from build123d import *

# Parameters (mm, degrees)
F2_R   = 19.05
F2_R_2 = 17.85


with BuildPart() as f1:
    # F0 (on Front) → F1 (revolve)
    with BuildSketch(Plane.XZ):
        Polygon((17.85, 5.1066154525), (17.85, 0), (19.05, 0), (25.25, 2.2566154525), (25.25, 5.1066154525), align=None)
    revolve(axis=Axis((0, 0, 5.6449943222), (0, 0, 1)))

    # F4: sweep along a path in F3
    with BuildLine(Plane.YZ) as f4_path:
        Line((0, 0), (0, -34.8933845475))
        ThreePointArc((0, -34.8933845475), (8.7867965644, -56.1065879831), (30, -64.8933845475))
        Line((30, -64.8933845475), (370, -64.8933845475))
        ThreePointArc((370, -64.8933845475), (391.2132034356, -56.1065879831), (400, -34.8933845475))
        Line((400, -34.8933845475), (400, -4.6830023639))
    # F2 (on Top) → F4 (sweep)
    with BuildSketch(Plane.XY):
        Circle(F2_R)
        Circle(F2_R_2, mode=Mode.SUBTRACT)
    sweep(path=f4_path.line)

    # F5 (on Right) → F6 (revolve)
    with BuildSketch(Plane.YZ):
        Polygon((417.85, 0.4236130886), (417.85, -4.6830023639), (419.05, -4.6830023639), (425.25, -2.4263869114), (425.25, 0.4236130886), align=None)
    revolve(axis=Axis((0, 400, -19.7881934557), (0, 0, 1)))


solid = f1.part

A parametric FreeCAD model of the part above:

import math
import FreeCAD as App
import Part
import Sketcher
from FreeCAD import Vector
Q = App.Units.Quantity

doc = App.newDocument("Part")
body = doc.addObject("PartDesign::Body", "Body")

# Sketch on XZ plane
sketch1 = doc.addObject("Sketcher::SketchObject", "Sketch")
body.addObject(sketch1)
sketch1.AttachmentSupport = (doc.XZ_Plane, [""])
sketch1.MapMode = "FlatFace"
sketch1.addGeometry([
    Part.LineSegment(Vector(17.9, 5.1, 0), Vector(17.9, 0, 0)),  # 0
    Part.LineSegment(Vector(17.9, 0, 0), Vector(19.1, 0, 0)),  # 1
    Part.LineSegment(Vector(19.1, 0, 0), Vector(25.2, 2.3, 0)),  # 2
    Part.LineSegment(Vector(25.2, 2.3, 0), Vector(25.2, 5.1, 0)),  # 3
    Part.LineSegment(Vector(25.2, 5.1, 0), Vector(17.9, 5.1, 0)),  # 4
], False)
sketch1.addConstraint([
    Sketcher.Constraint("Coincident", 0, 2, 1, 1),
    Sketcher.Constraint("Coincident", 1, 2, 2, 1),
    Sketcher.Constraint("Coincident", 2, 2, 3, 1),
    Sketcher.Constraint("Coincident", 3, 2, 4, 1),
    Sketcher.Constraint("Coincident", 4, 2, 0, 1),
    Sketcher.Constraint("Vertical", 0),
    Sketcher.Constraint("Horizontal", 1),
    Sketcher.Constraint("Vertical", 3),
    Sketcher.Constraint("Horizontal", 4),
    Sketcher.Constraint("PointOnObject", 0, 2, -1),
    Sketcher.Constraint("Angle", 2, Q("20 deg")),
    Sketcher.Constraint("DistanceX", 1, 1, 1, 2, Q("1.2 mm")),
    Sketcher.Constraint("DistanceX", 4, 2, 4, 1, Q("7.4 mm")),
    Sketcher.Constraint("DistanceY", 3, 1, 3, 2, Q("2.85 mm")),
    Sketcher.Constraint("DistanceX", -1, 1, 0, 2, Q("17.85 mm")),
])
revolution = doc.addObject("PartDesign::Revolution", "Revolution")
body.addObject(revolution)
revolution.Profile = sketch1
revolution.ReferenceAxis = (sketch1, ["V_Axis"])
revolution.Angle = 360

# Sketch on XY plane
sketch2 = doc.addObject("Sketcher::SketchObject", "Sketch001")
body.addObject(sketch2)
sketch2.AttachmentSupport = (doc.XY_Plane, [""])
sketch2.MapMode = "FlatFace"
sketch2.addGeometry([
    Part.Circle(Vector(0, 0, 0), Vector(0, 0, 1), 19),
    Part.Circle(Vector(0, 0, 0), Vector(0, 0, 1), 18),
], False)
sketch2.addConstraint([
    Sketcher.Constraint("Coincident", 0, 3, -1, 1),
    Sketcher.Constraint("Coincident", 1, 3, -1, 1),
    Sketcher.Constraint("Diameter", 0, Q("38.1 mm")),
    Sketcher.Constraint("Diameter", 1, Q("35.7 mm")),
])

# Sketch on YZ plane
sketch3 = doc.addObject("Sketcher::SketchObject", "Sketch002")
body.addObject(sketch3)
sketch3.AttachmentSupport = (doc.YZ_Plane, [""])
sketch3.MapMode = "FlatFace"
sketch3.addGeometry([
    Part.LineSegment(Vector(0, 0, 0), Vector(0, -35, 0)),  # 0
    Part.ArcOfCircle(Part.Circle(Vector(30, -35, 0), Vector(0, 0, 1), 30), math.radians(180), math.radians(270)),  # 1
    Part.LineSegment(Vector(30, -65, 0), Vector(370, -65, 0)),  # 2
    Part.ArcOfCircle(Part.Circle(Vector(370, -35, 0), Vector(0, 0, 1), 30), math.radians(-90), math.radians(0)),  # 3
    Part.LineSegment(Vector(400, -35, 0), Vector(400, -5, 0)),  # 4
], False)
sketch3.addConstraint([
    Sketcher.Constraint("Tangent", 0, 2, 1, 1),
    Sketcher.Constraint("Tangent", 1, 2, 2, 1),
    Sketcher.Constraint("Tangent", 2, 2, 3, 1),
    Sketcher.Constraint("Tangent", 3, 2, 4, 1),
    Sketcher.Constraint("Vertical", 0),
    Sketcher.Constraint("Horizontal", 2),
    Sketcher.Constraint("Vertical", 4),
    Sketcher.Constraint("Coincident", 0, 1, -1, 1),
    Sketcher.Constraint("Equal", 1, 3),
    Sketcher.Constraint("Radius", 1, Q("30 mm")),
    Sketcher.Constraint("DistanceX", 2, 1, 2, 2, Q("340 mm")),
    Sketcher.Constraint("DistanceY", 0, 2, 0, 1, Q("34.893385 mm")),
    Sketcher.Constraint("DistanceY", 4, 1, 4, 2, Q("30.210382 mm")),
])
doc.recompute()

additivepipe = doc.addObject("PartDesign::AdditivePipe", "AdditivePipe")
body.addObject(additivepipe)
additivepipe.Profile = sketch2
additivepipe.Spine = (sketch3, ["Edge1", "Edge2", "Edge3", "Edge4", "Edge5"])

# Sketch on YZ plane
sketch4 = doc.addObject("Sketcher::SketchObject", "Sketch003")
body.addObject(sketch4)
sketch4.AttachmentSupport = (doc.YZ_Plane, [""])
sketch4.MapMode = "FlatFace"
sketch4.addGeometry([
    Part.LineSegment(Vector(417.9, 0.4, 0), Vector(417.9, -4.7, 0)),  # 0
    Part.LineSegment(Vector(417.9, -4.7, 0), Vector(419.1, -4.7, 0)),  # 1
    Part.LineSegment(Vector(419.1, -4.7, 0), Vector(425.2, -2.4, 0)),  # 2
    Part.LineSegment(Vector(425.2, -2.4, 0), Vector(425.2, 0.4, 0)),  # 3
    Part.LineSegment(Vector(425.2, 0.4, 0), Vector(417.9, 0.4, 0)),  # 4
], False)
sketch4.addGeometry(Part.LineSegment(Vector(400, -4.7, 0), Vector(400, 0.4, 0)), True)  # axis
sketch4.addConstraint([
    Sketcher.Constraint("Coincident", 0, 2, 1, 1),
    Sketcher.Constraint("Coincident", 1, 2, 2, 1),
    Sketcher.Constraint("Coincident", 2, 2, 3, 1),
    Sketcher.Constraint("Coincident", 3, 2, 4, 1),
    Sketcher.Constraint("Coincident", 4, 2, 0, 1),
    Sketcher.Constraint("Vertical", 0),
    Sketcher.Constraint("Horizontal", 1),
    Sketcher.Constraint("Vertical", 3),
    Sketcher.Constraint("Horizontal", 4),
    Sketcher.Constraint("Vertical", 5),
    Sketcher.Constraint("Horizontal", 1, 2, 5, 1),
    Sketcher.Constraint("Horizontal", 4, 2, 5, 2),
    Sketcher.Constraint("Angle", 2, Q("20 deg")),
    Sketcher.Constraint("DistanceX", 1, 1, 1, 2, Q("1.2 mm")),
    Sketcher.Constraint("DistanceX", 4, 2, 4, 1, Q("7.4 mm")),
    Sketcher.Constraint("DistanceX", -1, 1, 5, 1, Q("400 mm")),
    Sketcher.Constraint("DistanceY", 3, 1, 3, 2, Q("2.85 mm")),
    Sketcher.Constraint("DistanceX", -1, 1, 0, 2, Q("417.85 mm")),
    Sketcher.Constraint("DistanceY", 0, 2, -1, 1, Q("4.683002 mm")),
])
revolution2 = doc.addObject("PartDesign::Revolution", "Revolution001")
body.addObject(revolution2)
revolution2.Profile = sketch4
revolution2.ReferenceAxis = (sketch4, ["Axis0"])
revolution2.Angle = 360

doc.recompute()
